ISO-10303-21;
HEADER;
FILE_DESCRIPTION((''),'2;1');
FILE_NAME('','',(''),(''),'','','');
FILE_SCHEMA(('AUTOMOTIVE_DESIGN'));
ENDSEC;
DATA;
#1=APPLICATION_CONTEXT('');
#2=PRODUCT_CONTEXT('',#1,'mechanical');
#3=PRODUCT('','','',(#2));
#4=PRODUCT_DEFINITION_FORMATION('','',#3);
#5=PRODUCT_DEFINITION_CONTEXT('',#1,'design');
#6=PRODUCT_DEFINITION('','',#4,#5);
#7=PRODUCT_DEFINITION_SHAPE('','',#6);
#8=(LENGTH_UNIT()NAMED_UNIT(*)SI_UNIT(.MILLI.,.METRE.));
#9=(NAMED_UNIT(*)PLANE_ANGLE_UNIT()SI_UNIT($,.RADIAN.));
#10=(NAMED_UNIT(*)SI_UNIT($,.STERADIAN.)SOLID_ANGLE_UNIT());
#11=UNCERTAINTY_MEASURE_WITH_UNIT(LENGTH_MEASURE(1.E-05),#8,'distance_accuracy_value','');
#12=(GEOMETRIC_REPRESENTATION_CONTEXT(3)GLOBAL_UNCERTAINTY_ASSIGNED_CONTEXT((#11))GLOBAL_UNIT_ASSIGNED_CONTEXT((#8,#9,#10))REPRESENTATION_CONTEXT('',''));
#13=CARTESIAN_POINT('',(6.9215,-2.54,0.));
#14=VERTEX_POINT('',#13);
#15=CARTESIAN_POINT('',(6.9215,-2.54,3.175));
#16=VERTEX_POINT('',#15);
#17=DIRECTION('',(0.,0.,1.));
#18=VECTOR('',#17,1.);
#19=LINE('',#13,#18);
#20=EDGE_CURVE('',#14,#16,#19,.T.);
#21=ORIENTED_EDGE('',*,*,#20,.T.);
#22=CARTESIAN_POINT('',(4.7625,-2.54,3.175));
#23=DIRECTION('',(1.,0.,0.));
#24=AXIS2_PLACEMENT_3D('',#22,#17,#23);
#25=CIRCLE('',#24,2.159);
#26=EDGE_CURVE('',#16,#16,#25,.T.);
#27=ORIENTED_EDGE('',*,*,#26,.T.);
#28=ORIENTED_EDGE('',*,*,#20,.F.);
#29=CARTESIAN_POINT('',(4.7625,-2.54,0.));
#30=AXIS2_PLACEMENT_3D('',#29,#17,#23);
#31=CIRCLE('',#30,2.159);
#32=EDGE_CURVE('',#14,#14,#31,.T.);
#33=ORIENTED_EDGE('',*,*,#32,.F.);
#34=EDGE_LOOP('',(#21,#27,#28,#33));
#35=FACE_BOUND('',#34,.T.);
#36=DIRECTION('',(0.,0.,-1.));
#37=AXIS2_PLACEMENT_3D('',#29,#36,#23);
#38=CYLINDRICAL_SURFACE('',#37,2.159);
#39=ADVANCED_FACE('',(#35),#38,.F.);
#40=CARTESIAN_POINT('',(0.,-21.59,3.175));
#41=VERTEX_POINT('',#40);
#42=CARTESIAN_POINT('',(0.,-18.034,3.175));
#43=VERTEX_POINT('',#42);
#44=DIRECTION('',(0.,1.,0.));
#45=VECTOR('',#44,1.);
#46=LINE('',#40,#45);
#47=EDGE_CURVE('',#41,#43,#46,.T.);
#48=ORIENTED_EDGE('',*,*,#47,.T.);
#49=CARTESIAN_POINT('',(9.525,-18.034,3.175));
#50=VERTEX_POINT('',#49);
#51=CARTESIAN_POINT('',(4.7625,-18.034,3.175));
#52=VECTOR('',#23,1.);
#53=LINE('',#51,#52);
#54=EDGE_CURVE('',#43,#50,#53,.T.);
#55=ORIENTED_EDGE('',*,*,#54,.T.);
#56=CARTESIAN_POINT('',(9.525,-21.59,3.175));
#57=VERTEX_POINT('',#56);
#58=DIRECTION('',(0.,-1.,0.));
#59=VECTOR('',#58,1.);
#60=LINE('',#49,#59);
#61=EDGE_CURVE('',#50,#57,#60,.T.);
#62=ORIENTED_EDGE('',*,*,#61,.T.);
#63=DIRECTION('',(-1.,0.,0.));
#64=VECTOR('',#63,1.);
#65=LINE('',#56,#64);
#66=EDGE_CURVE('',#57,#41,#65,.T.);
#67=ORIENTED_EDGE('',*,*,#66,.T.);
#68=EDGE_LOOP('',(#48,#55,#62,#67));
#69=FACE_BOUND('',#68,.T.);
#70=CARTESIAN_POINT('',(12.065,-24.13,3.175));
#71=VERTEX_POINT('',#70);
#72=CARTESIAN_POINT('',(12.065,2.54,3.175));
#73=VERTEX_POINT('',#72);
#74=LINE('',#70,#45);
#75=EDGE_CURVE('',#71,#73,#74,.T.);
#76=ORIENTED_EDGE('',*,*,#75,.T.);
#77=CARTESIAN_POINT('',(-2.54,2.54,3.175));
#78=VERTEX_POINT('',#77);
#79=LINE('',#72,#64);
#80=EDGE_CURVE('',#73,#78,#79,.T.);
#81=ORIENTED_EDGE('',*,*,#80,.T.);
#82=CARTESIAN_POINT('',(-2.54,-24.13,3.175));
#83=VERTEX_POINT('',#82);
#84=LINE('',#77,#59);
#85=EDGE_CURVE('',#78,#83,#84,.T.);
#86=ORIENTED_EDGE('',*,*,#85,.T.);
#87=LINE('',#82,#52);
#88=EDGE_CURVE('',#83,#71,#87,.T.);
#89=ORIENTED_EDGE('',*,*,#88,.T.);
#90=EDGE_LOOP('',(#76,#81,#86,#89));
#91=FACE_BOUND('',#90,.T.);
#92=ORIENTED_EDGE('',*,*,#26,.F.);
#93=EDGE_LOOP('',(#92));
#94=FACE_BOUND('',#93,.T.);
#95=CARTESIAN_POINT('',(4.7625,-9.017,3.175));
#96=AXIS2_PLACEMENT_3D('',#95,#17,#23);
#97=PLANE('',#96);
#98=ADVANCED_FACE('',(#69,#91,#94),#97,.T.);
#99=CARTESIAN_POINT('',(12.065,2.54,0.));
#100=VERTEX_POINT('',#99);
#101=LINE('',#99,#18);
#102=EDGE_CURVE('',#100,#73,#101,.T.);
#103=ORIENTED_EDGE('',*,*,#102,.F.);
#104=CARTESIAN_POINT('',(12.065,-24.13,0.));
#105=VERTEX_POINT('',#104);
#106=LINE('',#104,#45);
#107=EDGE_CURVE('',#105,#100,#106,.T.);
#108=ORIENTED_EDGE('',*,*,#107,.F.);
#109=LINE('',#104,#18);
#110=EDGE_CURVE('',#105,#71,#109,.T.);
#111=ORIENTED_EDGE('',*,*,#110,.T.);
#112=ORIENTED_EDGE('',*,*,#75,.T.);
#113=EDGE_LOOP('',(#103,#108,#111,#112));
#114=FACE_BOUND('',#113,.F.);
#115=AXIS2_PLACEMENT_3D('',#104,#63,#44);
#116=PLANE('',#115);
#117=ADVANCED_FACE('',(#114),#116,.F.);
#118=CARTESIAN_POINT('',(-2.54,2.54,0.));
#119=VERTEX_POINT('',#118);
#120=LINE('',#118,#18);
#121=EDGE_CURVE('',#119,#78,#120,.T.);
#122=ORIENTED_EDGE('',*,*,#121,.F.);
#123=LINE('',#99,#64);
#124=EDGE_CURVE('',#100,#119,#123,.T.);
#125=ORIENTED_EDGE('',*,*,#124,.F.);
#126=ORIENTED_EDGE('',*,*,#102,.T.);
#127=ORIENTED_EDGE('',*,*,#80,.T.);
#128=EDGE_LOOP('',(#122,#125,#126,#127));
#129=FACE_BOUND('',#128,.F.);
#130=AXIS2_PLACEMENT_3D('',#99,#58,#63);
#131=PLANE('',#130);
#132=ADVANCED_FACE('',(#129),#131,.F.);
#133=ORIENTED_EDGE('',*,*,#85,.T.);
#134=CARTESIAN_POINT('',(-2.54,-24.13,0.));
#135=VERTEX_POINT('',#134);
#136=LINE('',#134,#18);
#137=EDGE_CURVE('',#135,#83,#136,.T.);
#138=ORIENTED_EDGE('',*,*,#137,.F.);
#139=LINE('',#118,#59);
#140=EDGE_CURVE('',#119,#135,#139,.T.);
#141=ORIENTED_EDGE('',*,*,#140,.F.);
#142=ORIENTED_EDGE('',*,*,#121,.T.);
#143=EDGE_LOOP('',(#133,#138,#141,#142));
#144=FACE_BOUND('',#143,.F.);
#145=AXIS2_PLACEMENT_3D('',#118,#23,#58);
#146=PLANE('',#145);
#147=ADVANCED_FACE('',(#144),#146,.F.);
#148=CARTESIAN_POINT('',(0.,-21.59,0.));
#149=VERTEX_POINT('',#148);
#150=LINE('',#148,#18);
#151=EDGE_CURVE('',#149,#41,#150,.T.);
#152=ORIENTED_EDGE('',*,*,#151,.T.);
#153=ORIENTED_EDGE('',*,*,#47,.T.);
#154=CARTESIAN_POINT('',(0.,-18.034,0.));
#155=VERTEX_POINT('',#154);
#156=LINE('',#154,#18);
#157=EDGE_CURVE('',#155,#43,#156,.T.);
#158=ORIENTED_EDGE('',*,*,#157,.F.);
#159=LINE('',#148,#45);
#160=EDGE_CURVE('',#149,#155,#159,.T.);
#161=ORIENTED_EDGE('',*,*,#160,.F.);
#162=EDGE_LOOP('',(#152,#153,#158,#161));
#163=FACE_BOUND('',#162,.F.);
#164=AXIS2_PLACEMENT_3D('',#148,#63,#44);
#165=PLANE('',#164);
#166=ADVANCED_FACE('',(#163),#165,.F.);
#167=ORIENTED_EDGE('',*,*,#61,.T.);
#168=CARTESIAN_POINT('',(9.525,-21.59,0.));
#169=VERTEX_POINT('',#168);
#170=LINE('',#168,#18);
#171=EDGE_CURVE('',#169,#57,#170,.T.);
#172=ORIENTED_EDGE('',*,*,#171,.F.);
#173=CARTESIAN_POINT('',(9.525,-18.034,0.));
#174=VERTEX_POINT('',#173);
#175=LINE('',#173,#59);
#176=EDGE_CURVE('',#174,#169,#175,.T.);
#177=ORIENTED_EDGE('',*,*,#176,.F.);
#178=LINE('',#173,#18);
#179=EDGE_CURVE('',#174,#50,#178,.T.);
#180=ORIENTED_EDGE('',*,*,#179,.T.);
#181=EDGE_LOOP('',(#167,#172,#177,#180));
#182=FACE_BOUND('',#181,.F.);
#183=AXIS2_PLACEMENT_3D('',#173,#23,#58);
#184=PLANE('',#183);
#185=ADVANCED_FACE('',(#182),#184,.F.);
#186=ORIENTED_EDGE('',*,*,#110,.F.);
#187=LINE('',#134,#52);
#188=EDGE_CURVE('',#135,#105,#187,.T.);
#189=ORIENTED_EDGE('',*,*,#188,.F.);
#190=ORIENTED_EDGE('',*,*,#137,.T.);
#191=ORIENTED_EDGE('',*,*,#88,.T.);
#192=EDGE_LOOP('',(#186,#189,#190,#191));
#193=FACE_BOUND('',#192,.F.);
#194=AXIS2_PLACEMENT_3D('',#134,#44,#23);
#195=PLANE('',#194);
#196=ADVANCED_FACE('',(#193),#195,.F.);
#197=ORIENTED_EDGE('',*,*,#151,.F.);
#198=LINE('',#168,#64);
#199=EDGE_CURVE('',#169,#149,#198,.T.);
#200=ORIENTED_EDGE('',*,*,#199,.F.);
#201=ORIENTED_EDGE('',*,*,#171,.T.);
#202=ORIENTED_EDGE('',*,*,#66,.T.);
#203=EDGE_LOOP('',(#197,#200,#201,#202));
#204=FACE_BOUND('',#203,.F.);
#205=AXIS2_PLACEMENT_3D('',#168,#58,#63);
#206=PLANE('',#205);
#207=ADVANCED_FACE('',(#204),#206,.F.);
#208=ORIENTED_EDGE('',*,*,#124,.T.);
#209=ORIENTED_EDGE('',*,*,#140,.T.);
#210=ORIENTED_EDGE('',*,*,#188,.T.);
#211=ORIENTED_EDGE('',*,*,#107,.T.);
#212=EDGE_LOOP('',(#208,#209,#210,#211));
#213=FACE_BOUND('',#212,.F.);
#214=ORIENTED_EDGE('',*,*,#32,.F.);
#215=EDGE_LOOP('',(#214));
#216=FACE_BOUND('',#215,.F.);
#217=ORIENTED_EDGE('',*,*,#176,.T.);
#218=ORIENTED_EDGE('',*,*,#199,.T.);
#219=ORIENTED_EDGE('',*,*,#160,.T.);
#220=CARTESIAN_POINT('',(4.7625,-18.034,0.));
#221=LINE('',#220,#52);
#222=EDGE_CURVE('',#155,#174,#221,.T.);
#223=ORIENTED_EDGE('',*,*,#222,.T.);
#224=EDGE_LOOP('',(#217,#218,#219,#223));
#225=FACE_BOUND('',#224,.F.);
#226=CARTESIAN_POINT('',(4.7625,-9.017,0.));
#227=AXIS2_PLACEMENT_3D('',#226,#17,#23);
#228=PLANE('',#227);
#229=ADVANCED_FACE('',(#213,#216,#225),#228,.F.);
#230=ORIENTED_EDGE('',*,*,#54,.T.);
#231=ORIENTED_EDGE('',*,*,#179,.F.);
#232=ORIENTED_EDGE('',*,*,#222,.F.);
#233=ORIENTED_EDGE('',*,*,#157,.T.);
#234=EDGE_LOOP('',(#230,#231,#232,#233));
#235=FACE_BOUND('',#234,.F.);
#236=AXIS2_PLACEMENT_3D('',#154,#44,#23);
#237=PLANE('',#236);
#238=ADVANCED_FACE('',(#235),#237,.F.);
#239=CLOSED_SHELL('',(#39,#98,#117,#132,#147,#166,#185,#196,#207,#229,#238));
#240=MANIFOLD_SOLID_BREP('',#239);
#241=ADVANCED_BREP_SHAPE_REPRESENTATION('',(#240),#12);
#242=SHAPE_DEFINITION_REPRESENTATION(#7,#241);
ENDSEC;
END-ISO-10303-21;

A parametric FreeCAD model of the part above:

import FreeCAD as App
import Part
import Sketcher
Q = App.Units.Quantity


def add_polygon(sketch, points):
    """Adds a closed chain of lines whose ends are joined by coincident constraints."""
    first, n = sketch.GeometryCount, len(points)
    for a, b in zip(points, points[1:] + points[:1]):
        sketch.addGeometry(Part.LineSegment(App.Vector(*a, 0), App.Vector(*b, 0)), False)
    for i in range(n):
        sketch.addConstraint(Sketcher.Constraint("Coincident", first + i, 2, first + (i + 1) % n, 1))

doc = App.newDocument("Part")
body = doc.addObject("PartDesign::Body", "Body")

# Sketch on XY plane
sketch1 = doc.addObject("Sketcher::SketchObject", "Sketch")
body.addObject(sketch1)
sketch1.AttachmentSupport = (doc.XY_Plane, [""])
sketch1.MapMode = "FlatFace"
add_polygon(sketch1, [(12.1, 2.5), (-2.5, 2.5), (-2.5, -24.1), (12.1, -24.1)])  # lines 0-3
add_polygon(sketch1, [(0, -18), (9.5, -18), (9.5, -21.6), (0, -21.6)])  # lines 4-7
sketch1.addGeometry(Part.Circle(App.Vector(4.8, -2.5, 0), App.Vector(0, 0, 1), 2.2), False)  # 8
sketch1.addConstraint([
    Sketcher.Constraint("Horizontal", 0),
    Sketcher.Constraint("Vertical", 1),
    Sketcher.Constraint("Horizontal", 2),
    Sketcher.Constraint("Vertical", 3),
    Sketcher.Constraint("Horizontal", 4),
    Sketcher.Constraint("Vertical", 5),
    Sketcher.Constraint("Horizontal", 6),
    Sketcher.Constraint("Vertical", 7),
    Sketcher.Constraint("PointOnObject", 6, 2, -2),
    Sketcher.Constraint("Diameter", 8, Q("0.17 in")),
    Sketcher.Constraint("DistanceY", 1, 2, 1, 1, Q("1.05 in")),
    Sketcher.Constraint("DistanceY", 5, 2, 5, 1, Q("0.14 in")),
    Sketcher.Constraint("DistanceY", 8, 3, -1, 1, Q("0.1 in")),
    Sketcher.Constraint("DistanceX", 0, 2, -1, 1, Q("0.1 in")),
    Sketcher.Constraint("DistanceY", -1, 1, 0, 2, Q("0.1 in")),
    Sketcher.Constraint("DistanceX", 4, 2, 2, 2, Q("0.1 in")),
    Sketcher.Constraint("DistanceY", 2, 2, 5, 2, Q("0.1 in")),
    Sketcher.Constraint("DistanceX", 0, 2, 0, 1, Q("0.575 in")),
    Sketcher.Constraint("DistanceX", -1, 1, 8, 3, Q("0.1875 in")),
])
pad1 = doc.addObject("PartDesign::Pad", "Pad")
body.addObject(pad1)
pad1.Profile = sketch1
pad1.Length = Q("0.125 in")

doc.recompute()
